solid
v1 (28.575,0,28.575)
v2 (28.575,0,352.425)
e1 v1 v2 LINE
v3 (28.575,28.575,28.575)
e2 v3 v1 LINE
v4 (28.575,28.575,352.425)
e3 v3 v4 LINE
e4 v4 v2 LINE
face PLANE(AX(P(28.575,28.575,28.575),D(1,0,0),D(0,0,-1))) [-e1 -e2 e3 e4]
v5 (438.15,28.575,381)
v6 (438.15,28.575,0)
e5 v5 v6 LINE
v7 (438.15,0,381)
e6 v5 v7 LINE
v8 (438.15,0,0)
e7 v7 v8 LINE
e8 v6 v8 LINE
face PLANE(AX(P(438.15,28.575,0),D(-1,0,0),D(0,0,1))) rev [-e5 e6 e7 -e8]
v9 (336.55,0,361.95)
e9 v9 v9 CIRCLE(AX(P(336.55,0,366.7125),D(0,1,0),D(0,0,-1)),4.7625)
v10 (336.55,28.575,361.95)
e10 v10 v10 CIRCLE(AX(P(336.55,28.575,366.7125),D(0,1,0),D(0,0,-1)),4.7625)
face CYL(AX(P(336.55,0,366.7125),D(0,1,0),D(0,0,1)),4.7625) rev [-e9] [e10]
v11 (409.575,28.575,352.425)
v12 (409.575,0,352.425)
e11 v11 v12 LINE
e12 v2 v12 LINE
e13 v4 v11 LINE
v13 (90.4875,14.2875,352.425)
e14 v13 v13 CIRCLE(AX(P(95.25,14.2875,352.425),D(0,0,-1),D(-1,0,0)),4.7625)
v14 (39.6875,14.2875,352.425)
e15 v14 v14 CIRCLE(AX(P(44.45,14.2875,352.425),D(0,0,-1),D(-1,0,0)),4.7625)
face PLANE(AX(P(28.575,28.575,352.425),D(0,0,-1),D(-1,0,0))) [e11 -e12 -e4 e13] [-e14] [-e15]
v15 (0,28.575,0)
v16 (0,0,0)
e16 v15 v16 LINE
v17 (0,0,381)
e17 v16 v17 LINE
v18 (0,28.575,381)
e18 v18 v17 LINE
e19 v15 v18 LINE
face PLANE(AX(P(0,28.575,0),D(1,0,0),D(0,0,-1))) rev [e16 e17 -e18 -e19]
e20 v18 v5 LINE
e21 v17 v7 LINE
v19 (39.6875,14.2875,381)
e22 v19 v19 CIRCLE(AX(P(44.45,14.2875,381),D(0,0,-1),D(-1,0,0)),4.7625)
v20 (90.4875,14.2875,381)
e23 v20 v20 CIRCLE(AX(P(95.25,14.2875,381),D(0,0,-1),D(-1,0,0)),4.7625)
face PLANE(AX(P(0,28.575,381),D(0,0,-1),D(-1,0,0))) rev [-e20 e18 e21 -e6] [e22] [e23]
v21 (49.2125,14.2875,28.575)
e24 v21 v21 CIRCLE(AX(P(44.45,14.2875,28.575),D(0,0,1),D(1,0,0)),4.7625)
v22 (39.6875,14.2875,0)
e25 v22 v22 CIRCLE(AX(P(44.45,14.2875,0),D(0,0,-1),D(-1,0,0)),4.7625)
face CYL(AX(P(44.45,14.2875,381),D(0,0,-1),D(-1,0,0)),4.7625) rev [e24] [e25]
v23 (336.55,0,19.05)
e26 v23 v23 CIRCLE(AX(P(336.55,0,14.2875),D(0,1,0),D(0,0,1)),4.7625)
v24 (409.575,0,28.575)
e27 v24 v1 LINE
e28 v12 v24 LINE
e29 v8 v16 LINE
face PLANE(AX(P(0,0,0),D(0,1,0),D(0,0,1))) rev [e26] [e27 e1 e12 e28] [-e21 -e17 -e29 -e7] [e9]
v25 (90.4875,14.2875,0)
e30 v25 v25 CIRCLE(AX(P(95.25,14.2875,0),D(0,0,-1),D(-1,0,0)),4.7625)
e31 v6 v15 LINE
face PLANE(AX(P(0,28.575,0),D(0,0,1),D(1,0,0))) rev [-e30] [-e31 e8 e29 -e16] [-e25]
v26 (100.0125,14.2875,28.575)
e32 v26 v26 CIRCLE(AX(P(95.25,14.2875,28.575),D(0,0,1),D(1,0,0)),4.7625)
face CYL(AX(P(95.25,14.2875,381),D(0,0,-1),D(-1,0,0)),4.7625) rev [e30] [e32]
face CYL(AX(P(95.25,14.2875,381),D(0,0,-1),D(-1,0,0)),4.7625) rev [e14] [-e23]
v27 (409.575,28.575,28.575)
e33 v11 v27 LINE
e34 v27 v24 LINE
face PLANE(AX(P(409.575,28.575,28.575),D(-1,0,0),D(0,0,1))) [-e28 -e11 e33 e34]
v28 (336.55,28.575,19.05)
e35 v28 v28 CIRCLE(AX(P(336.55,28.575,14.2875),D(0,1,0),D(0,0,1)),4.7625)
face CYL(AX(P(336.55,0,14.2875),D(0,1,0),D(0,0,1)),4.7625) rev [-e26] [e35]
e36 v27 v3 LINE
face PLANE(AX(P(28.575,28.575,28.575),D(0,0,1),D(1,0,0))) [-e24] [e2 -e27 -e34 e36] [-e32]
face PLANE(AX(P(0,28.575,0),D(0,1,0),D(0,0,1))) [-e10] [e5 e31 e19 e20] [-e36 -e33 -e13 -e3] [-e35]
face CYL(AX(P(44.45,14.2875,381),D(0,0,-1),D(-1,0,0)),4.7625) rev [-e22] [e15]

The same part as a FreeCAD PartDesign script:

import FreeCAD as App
import Part
import Sketcher
Q = App.Units.Quantity

doc = App.newDocument("Part")
params = doc.addObject("Spreadsheet::Sheet", "Params")
for row, (alias, value) in enumerate([
    ("sketch1_width", "15 in"),
    ("sketch1_width2", "17.25 in"),
    ("sketch1_height", "12.75 in"),
    ("pad1_length", "1.125 in"),
    ("sketch2_diameter", "0.375 in"),
    ("sketch3_diameter", "0.375 in"),
    ("pocket2_length", "1.125 in"),
], start=1):
    params.set(f"A{row}", alias)
    params.set(f"B{row}", "=" + value)
    params.setAlias(f"B{row}", alias)

body = doc.addObject("PartDesign::Body", "Body")

# Sketch on XZ plane
sketch1 = doc.addObject("Sketcher::SketchObject", "Sketch")
body.addObject(sketch1)
sketch1.AttachmentSupport = (doc.XZ_Plane, [""])
sketch1.MapMode = "FlatFace"
sketch1.addGeometry([
    Part.LineSegment(App.Vector(0, 0, 0), App.Vector(0, 381, 0)),  # 0
    Part.LineSegment(App.Vector(0, 381, 0), App.Vector(438.15, 381, 0)),  # 1
    Part.LineSegment(App.Vector(438.15, 381, 0), App.Vector(438.15, 0, 0)),  # 2
    Part.LineSegment(App.Vector(438.15, 0, 0), App.Vector(0, 0, 0)),  # 3
    Part.LineSegment(App.Vector(409.575, 352.425, 0), App.Vector(28.575, 352.425, 0)),  # 4
    Part.LineSegment(App.Vector(28.575, 352.425, 0), App.Vector(28.575, 28.575, 0)),  # 5
    Part.LineSegment(App.Vector(28.575, 28.575, 0), App.Vector(409.575, 28.575, 0)),  # 6
    Part.LineSegment(App.Vector(409.575, 28.575, 0), App.Vector(409.575, 352.425, 0)),  # 7
], False)
sketch1.addConstraint([
    Sketcher.Constraint("Coincident", 0, 2, 1, 1),
    Sketcher.Constraint("Coincident", 1, 2, 2, 1),
    Sketcher.Constraint("Coincident", 2, 2, 3, 1),
    Sketcher.Constraint("Coincident", 3, 2, 0, 1),
    Sketcher.Constraint("Coincident", 4, 2, 5, 1),
    Sketcher.Constraint("Coincident", 5, 2, 6, 1),
    Sketcher.Constraint("Coincident", 6, 2, 7, 1),
    Sketcher.Constraint("Coincident", 7, 2, 4, 1),
    Sketcher.Constraint("Vertical", 0),
    Sketcher.Constraint("Horizontal", 1),
    Sketcher.Constraint("Vertical", 2),
    Sketcher.Constraint("Horizontal", 3),
    Sketcher.Constraint("Horizontal", 4),
    Sketcher.Constraint("Vertical", 5),
    Sketcher.Constraint("Horizontal", 6),
    Sketcher.Constraint("Vertical", 7),
    Sketcher.Constraint("Coincident", 3, 2, -1, 1),
    Sketcher.Constraint("Equal", 6, 0),
    Sketcher.Constraint("DistanceX", 4, 2, 4, 1, Q("15 in")),
    Sketcher.Constraint("DistanceX", 1, 1, 1, 2, Q("17.25 in")),
    Sketcher.Constraint("DistanceY", 5, 2, 5, 1, Q("12.75 in")),
    Sketcher.Constraint("DistanceX", -1, 1, 4, 2, Q("1.125 in")),
    Sketcher.Constraint("DistanceY", -1, 1, 4, 2, Q("13.875 in")),
])
sketch1.setExpression("Constraints[18]", "Params.sketch1_width")
sketch1.setExpression("Constraints[19]", "Params.sketch1_width2")
sketch1.setExpression("Constraints[20]", "Params.sketch1_height")
pad1 = doc.addObject("PartDesign::Pad", "Pad")
body.addObject(pad1)
pad1.Profile = sketch1
pad1.setExpression("Length", "Params.pad1_length")
pad1.Reversed = True

# Sketch on XY plane
sketch2 = doc.addObject("Sketcher::SketchObject", "Sketch001")
body.addObject(sketch2)
sketch2.AttachmentSupport = (doc.XY_Plane, [""])
sketch2.MapMode = "FlatFace"
sketch2.addGeometry([
    Part.Circle(App.Vector(44.45, 14.2875, 0), App.Vector(0, 0, 1), 4.7625),
    Part.Circle(App.Vector(95.25, 14.2875, 0), App.Vector(0, 0, 1), 4.7625),
], False)
sketch2.addConstraint([
    Sketcher.Constraint("Equal", 0, 1),
    Sketcher.Constraint("Horizontal", 0, 3, 1, 3),
    Sketcher.Constraint("Diameter", 0, Q("0.375 in")),
    Sketcher.Constraint("DistanceX", 0, 3, 1, 3, Q("2 in")),
    Sketcher.Constraint("DistanceX", -1, 1, 0, 3, Q("1.75 in")),
    Sketcher.Constraint("DistanceY", -1, 1, 0, 3, Q("0.5625 in")),
])
sketch2.setExpression("Constraints[2]", "Params.sketch2_diameter")
pocket1 = doc.addObject("PartDesign::Pocket", "Pocket")
body.addObject(pocket1)
pocket1.Profile = sketch2
pocket1.Type = "ThroughAll"
pocket1.Reversed = True

# Sketch on XZ plane
sketch3 = doc.addObject("Sketcher::SketchObject", "Sketch002")
body.addObject(sketch3)
sketch3.AttachmentSupport = (doc.XZ_Plane, [""])
sketch3.MapMode = "FlatFace"
sketch3.AttachmentOffset = App.Placement(App.Vector(0, 0, -1.125 * 25.4), App.Rotation())
sketch3.addGeometry([
    Part.Circle(App.Vector(336.55, 14.2875, 0), App.Vector(0, 0, 1), 4.7625),
    Part.Circle(App.Vector(336.55, 366.7125, 0), App.Vector(0, 0, 1), 4.7625),
], False)
sketch3.addConstraint([
    Sketcher.Constraint("Equal", 0, 1),
    Sketcher.Constraint("Vertical", 0, 3, 1, 3),
    Sketcher.Constraint("Diameter", 0, Q("0.375 in")),
    Sketcher.Constraint("DistanceX", -1, 1, 0, 3, Q("13.25 in")),
    Sketcher.Constraint("DistanceY", -1, 1, 0, 3, Q("0.5625 in")),
    Sketcher.Constraint("DistanceY", -1, 1, 1, 3, Q("14.4375 in")),
])
sketch3.setExpression("Constraints[2]", "Params.sketch3_diameter")
pocket2 = doc.addObject("PartDesign::Pocket", "Pocket001")
body.addObject(pocket2)
pocket2.Profile = sketch3
pocket2.setExpression("Length", "Params.pocket2_length")
pocket2.Reversed = True

doc.recompute()
